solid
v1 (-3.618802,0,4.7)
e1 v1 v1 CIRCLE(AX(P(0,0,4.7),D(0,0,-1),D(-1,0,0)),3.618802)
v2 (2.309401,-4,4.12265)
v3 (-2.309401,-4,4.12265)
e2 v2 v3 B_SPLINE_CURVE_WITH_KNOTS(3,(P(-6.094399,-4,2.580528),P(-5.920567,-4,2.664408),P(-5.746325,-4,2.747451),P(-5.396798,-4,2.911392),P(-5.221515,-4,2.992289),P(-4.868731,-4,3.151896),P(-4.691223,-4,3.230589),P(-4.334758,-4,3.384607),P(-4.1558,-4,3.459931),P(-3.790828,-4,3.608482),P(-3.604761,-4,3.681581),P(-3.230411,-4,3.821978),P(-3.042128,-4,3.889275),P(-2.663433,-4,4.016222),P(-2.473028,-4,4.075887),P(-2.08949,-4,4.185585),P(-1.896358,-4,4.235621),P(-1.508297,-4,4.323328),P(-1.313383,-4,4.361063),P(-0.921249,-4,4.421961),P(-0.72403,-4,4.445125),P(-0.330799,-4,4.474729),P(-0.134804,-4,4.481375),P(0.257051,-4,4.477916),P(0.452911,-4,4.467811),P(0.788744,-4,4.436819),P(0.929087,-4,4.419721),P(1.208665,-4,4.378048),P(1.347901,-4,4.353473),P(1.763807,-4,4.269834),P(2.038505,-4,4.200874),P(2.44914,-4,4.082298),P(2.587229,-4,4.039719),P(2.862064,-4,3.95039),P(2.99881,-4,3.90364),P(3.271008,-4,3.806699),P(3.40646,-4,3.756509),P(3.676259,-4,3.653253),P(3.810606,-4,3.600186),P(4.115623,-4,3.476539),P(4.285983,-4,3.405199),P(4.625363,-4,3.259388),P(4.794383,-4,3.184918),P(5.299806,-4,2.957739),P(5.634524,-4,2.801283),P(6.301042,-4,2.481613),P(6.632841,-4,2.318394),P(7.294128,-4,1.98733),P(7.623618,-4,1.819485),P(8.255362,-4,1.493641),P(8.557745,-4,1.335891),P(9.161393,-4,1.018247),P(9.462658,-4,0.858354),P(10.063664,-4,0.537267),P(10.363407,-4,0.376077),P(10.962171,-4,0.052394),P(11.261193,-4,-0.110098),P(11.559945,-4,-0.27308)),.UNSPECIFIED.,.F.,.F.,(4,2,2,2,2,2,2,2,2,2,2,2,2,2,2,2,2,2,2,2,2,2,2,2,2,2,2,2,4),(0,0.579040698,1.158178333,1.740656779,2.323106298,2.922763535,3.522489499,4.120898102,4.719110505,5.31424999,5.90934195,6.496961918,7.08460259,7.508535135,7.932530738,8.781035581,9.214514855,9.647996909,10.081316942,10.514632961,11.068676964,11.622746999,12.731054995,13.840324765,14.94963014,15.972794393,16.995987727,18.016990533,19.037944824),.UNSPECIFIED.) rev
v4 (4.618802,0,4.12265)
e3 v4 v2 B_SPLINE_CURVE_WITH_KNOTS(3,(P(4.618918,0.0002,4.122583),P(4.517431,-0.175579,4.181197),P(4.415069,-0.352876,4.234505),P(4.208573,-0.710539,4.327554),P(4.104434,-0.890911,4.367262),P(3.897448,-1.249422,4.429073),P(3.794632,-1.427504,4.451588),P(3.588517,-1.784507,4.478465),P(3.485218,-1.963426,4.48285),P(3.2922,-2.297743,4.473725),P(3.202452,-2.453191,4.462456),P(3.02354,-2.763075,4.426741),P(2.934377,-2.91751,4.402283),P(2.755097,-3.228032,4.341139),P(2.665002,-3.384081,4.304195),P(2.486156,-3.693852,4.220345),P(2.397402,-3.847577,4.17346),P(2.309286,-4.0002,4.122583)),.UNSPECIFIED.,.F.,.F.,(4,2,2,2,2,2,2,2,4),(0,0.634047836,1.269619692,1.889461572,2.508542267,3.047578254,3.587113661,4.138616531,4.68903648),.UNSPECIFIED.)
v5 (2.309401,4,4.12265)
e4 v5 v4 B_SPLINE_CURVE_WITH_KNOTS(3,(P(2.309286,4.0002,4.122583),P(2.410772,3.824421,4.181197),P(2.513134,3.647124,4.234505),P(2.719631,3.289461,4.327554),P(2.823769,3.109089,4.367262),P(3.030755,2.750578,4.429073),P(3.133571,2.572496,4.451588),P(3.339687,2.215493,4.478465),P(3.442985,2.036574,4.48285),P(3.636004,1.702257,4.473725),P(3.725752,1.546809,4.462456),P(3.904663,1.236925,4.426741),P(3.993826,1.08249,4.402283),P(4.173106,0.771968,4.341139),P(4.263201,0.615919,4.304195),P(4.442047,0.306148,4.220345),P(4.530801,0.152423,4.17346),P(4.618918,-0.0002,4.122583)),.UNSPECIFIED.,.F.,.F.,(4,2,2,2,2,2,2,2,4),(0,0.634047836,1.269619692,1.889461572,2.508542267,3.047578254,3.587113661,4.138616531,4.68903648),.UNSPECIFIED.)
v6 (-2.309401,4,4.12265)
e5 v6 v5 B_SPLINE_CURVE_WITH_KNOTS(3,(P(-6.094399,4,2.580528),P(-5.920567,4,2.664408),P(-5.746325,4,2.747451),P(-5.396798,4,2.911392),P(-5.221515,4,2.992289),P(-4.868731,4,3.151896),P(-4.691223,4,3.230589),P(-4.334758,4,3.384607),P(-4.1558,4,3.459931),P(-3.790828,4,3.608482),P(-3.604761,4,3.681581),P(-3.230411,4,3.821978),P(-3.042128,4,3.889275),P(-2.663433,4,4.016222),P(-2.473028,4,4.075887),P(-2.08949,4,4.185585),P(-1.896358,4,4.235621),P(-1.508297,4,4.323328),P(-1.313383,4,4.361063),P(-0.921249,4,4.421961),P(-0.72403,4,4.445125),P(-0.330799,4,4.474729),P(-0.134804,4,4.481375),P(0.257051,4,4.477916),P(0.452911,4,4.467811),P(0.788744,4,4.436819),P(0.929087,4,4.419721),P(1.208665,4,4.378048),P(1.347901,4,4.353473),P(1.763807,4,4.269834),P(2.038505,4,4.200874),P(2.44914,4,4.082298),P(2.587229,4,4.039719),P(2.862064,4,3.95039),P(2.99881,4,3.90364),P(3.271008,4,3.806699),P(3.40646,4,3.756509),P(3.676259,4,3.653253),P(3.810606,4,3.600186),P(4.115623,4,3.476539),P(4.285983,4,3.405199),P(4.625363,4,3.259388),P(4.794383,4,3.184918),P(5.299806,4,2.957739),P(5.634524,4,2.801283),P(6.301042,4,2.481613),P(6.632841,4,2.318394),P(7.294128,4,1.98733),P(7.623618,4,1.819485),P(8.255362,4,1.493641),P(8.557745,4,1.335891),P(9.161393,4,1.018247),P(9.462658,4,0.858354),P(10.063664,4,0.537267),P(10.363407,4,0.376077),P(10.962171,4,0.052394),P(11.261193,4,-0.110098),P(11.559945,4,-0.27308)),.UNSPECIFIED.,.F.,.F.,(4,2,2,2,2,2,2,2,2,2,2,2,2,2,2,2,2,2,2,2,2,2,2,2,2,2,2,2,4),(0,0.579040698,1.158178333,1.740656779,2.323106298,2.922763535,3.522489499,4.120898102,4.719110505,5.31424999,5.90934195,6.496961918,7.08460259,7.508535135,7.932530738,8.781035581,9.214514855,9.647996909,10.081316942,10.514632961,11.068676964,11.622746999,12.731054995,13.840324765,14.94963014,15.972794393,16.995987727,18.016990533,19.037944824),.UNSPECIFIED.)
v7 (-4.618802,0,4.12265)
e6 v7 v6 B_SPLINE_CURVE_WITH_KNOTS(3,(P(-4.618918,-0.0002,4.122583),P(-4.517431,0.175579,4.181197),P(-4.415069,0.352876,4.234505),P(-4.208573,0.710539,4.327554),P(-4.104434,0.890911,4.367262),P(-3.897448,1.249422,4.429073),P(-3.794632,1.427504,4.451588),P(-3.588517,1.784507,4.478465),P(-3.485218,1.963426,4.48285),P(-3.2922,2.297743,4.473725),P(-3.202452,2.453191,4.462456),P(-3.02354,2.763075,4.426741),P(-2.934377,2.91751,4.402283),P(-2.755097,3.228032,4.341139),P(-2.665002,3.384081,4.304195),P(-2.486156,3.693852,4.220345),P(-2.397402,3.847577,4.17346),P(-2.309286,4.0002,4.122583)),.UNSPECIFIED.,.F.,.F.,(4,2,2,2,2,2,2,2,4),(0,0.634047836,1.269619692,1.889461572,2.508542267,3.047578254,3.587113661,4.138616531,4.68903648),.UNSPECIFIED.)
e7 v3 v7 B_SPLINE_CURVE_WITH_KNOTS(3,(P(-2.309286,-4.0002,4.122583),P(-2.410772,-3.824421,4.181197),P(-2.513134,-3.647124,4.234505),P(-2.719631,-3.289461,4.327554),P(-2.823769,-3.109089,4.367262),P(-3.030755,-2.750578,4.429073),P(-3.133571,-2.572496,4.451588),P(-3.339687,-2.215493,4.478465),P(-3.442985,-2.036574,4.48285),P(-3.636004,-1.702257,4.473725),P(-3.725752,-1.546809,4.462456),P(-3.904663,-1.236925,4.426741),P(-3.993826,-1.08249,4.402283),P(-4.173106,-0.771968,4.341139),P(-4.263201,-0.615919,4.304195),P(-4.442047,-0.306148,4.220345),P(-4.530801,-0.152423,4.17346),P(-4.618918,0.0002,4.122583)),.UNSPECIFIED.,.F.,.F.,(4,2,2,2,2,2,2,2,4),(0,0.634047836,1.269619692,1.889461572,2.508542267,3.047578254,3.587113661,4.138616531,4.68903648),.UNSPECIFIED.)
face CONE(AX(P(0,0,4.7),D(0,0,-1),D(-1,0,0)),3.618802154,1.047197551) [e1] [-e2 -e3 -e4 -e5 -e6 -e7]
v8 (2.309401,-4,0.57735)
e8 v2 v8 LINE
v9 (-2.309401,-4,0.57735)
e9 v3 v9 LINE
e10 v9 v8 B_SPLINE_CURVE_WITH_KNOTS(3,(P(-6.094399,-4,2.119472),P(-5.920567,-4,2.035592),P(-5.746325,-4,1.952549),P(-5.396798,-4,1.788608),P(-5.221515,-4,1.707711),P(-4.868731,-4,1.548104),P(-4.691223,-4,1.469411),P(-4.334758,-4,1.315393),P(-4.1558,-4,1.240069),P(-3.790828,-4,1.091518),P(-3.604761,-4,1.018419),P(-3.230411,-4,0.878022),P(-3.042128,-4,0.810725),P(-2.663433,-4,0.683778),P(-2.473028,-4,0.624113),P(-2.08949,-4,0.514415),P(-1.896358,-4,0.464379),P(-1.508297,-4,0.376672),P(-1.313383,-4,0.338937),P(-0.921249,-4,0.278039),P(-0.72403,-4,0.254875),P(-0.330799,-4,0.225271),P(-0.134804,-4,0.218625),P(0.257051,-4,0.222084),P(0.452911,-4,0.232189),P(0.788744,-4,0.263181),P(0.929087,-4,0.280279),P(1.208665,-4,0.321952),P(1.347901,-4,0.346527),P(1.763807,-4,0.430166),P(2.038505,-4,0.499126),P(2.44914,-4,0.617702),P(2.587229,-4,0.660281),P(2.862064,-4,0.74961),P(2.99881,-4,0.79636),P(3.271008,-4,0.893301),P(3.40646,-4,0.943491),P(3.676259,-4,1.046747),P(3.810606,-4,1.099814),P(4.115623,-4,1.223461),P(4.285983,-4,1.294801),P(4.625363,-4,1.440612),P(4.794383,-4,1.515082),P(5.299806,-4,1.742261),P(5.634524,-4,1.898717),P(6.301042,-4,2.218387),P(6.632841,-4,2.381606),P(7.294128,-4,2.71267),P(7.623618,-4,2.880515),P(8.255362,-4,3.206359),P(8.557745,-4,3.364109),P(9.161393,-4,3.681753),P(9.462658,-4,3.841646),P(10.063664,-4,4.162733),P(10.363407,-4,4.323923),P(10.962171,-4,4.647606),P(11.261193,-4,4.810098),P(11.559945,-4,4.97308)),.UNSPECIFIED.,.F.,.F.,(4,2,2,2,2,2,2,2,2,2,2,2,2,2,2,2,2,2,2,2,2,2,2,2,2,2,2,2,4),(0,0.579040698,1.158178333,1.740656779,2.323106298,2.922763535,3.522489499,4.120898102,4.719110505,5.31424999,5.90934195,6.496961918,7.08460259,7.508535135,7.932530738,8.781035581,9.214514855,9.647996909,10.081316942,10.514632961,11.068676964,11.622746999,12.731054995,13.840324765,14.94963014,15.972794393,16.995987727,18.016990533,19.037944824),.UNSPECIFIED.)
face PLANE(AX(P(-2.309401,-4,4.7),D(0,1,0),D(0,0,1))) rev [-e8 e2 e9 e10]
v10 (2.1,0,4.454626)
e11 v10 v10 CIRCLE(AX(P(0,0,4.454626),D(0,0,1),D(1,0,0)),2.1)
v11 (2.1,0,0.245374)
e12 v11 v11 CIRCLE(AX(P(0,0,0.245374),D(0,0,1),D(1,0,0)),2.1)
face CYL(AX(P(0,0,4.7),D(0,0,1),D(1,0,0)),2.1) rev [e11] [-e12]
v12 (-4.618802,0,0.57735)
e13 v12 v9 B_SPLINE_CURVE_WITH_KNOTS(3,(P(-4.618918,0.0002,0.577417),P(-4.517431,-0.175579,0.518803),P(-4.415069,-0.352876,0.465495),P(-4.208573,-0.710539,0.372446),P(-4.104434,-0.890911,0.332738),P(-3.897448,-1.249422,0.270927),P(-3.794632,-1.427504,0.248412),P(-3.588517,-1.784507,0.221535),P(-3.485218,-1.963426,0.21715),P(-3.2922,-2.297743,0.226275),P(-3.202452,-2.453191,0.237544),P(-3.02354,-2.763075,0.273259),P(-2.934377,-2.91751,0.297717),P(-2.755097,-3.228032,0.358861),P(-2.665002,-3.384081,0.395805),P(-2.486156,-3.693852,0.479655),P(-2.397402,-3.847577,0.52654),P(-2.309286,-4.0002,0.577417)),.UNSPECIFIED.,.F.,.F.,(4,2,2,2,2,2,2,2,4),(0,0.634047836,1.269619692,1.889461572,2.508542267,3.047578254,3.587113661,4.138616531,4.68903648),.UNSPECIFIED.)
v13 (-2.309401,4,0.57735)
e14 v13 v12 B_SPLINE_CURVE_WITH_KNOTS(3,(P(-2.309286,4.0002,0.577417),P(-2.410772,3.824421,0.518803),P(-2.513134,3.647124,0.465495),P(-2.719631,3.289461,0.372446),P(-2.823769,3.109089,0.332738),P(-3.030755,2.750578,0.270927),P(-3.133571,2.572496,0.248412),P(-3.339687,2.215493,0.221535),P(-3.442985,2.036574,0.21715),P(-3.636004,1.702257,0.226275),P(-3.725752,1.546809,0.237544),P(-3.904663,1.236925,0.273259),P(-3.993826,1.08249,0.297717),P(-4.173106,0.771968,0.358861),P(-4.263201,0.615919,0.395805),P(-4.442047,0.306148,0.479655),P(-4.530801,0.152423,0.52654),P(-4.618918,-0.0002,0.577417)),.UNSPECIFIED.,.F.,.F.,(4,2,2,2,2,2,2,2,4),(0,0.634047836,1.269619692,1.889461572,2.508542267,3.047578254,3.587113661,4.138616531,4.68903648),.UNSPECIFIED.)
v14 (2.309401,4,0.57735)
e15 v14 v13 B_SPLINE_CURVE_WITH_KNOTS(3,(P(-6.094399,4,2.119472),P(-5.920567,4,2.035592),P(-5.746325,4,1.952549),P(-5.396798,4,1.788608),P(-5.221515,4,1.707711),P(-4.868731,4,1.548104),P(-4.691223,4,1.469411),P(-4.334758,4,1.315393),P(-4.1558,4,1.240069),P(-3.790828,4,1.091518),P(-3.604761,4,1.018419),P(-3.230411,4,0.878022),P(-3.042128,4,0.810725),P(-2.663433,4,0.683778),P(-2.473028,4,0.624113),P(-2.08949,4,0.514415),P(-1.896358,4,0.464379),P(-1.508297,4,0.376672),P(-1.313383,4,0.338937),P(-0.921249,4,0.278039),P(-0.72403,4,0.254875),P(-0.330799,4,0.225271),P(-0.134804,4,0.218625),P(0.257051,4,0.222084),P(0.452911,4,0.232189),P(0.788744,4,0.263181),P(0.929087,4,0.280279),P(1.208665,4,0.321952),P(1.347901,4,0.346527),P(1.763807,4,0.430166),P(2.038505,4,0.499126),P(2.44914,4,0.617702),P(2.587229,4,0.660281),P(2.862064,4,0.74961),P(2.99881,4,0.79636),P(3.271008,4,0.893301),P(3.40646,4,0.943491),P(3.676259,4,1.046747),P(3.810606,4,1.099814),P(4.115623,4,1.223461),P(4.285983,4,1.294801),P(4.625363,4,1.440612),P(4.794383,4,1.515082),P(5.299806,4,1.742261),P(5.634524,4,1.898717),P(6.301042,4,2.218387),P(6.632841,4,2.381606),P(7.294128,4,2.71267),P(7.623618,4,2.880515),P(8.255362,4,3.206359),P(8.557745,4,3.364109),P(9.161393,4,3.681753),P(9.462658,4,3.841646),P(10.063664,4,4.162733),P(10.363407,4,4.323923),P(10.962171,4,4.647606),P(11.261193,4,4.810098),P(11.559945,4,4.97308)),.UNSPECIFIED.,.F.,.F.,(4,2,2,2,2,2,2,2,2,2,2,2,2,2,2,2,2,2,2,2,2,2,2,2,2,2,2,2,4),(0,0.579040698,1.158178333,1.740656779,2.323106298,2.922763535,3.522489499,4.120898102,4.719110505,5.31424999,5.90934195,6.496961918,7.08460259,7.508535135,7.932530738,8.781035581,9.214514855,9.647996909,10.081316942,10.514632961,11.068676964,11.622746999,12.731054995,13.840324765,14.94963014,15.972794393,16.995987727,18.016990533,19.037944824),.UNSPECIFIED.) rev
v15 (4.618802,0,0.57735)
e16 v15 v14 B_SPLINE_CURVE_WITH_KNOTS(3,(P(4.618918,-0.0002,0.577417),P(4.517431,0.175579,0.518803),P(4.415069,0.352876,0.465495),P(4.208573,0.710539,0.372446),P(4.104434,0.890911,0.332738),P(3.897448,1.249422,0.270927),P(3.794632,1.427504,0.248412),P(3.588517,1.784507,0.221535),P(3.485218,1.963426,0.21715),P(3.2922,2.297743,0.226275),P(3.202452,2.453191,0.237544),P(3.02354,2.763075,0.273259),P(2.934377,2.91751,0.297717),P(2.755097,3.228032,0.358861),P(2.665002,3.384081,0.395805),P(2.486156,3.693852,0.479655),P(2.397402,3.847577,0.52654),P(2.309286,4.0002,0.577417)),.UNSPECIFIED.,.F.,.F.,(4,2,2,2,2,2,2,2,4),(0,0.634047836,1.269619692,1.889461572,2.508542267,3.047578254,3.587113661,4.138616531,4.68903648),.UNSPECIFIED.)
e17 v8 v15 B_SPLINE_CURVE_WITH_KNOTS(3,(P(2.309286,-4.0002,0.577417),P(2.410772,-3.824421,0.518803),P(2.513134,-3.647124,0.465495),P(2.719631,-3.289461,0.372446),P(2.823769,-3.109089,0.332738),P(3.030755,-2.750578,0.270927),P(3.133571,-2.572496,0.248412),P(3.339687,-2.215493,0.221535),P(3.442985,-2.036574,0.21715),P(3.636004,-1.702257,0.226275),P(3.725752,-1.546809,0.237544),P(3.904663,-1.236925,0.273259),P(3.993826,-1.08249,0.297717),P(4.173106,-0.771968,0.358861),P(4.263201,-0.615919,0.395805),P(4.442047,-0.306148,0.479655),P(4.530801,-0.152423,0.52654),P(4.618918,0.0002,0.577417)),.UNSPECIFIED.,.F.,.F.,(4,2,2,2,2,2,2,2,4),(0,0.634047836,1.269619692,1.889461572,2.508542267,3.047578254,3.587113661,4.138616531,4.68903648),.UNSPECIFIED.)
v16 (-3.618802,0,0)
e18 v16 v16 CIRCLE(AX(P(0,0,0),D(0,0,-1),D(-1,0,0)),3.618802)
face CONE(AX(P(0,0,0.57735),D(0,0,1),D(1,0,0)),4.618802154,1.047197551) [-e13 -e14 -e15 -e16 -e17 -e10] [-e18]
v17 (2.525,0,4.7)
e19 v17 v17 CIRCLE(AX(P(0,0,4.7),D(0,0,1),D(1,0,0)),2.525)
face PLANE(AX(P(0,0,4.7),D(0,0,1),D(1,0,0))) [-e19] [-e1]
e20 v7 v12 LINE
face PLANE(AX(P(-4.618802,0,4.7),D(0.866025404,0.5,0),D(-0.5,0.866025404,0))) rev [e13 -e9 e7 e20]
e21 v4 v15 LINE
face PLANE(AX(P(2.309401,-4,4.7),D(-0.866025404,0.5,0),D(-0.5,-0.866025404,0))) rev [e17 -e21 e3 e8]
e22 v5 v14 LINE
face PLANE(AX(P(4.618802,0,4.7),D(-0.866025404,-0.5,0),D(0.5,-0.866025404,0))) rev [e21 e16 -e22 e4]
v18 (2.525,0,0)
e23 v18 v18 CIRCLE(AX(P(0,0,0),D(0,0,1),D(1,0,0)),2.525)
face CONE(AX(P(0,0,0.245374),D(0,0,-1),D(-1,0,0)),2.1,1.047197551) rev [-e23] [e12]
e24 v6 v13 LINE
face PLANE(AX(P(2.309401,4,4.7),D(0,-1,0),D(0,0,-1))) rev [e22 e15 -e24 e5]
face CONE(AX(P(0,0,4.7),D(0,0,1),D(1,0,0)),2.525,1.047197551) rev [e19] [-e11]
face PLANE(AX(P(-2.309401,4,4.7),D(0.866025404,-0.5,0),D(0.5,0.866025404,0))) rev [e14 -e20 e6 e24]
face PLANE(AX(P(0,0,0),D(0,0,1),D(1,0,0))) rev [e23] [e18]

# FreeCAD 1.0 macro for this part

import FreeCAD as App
import Part
import Sketcher
from FreeCAD import Vector
Q = App.Units.Quantity


def add_polygon(sketch, points):
    """Adds a closed chain of lines whose ends are joined by coincident constraints."""
    first, n = sketch.GeometryCount, len(points)
    for a, b in zip(points, points[1:] + points[:1]):
        sketch.addGeometry(Part.LineSegment(App.Vector(*a, 0), App.Vector(*b, 0)), False)
    for i in range(n):
        sketch.addConstraint(Sketcher.Constraint("Coincident", first + i, 2, first + (i + 1) % n, 1))

doc = App.newDocument("Part")
params = doc.addObject("Spreadsheet::Sheet", "Params")
for row, (alias, value) in enumerate([
    ("pad1_length", "4.7 mm"),
    ("sketch2_height", "4.7 mm"),
    ("groove_angle", "360 deg"),
    ("sketch3_width", "1 mm"),
    ("groove2_angle", "360 deg"),
], start=1):
    params.set(f"A{row}", alias)
    params.set(f"B{row}", "=" + value)
    params.setAlias(f"B{row}", alias)

body = doc.addObject("PartDesign::Body", "Body")

# Sketch on XY plane
sketch1 = body.newObject("Sketcher::SketchObject", "Sketch")
sketch1.AttachmentSupport = (doc.getObject("XY_Plane"), [""])
sketch1.MapMode = "FlatFace"
add_polygon(sketch1, [(2.3, 4), (-2.3, 4), (-4.6, 0), (-2.3, -4), (2.3, -4), (4.6, 0)])  # lines 0-5
sketch1.addConstraint(Sketcher.Constraint("Horizontal", 0))
sketch1.addConstraint(Sketcher.Constraint("Horizontal", 3))
sketch1.addConstraint(Sketcher.Constraint("Symmetric", 0, 2, 3, 2, -1, 1))
sketch1.addConstraint(Sketcher.Constraint("Symmetric", 1, 2, 4, 2, -1, 1))
sketch1.addConstraint(Sketcher.Constraint("PointOnObject", 1, 2, -1))
sketch1.addConstraint(Sketcher.Constraint("Parallel", 2, 5))
sketch1.addConstraint(Sketcher.Constraint("Vertical", 0, 2, 2, 2))
sketch1.addConstraint(Sketcher.Constraint("Angle", 1, Q("-120 deg")))
sketch1.addConstraint(Sketcher.Constraint("DistanceY", -1, 1, 0, 2, Q("4 mm")))
sketch1.addConstraint(Sketcher.Constraint("DistanceX", 0, 2, -1, 1, Q("2.309401 mm")))
pad1 = body.newObject("PartDesign::Pad", "Pad")
pad1.Profile = sketch1
pad1.setExpression("Length", "Params.pad1_length")

# Sketch on YZ plane
sketch2 = body.newObject("Sketcher::SketchObject", "Sketch001")
sketch2.AttachmentSupport = (doc.getObject("YZ_Plane"), [""])
sketch2.MapMode = "FlatFace"
add_polygon(sketch2, [(0, 0), (0, 4.7), (-2.52, 4.7), (-2.1, 4.45), (-2.1, 0.25), (-2.52, 0)])  # lines 0-5
sketch2.addConstraint(Sketcher.Constraint("Vertical", 0))
sketch2.addConstraint(Sketcher.Constraint("Horizontal", 1))
sketch2.addConstraint(Sketcher.Constraint("Vertical", 3))
sketch2.addConstraint(Sketcher.Constraint("Horizontal", 5))
sketch2.addConstraint(Sketcher.Constraint("Coincident", 5, 2, -1, 1))
sketch2.addConstraint(Sketcher.Constraint("Vertical", 1, 2, 4, 2))
sketch2.addConstraint(Sketcher.Constraint("Equal", 2, 4))
sketch2.addConstraint(Sketcher.Constraint("Angle", 2, Q("-30 deg")))
sketch2.addConstraint(Sketcher.Constraint("DistanceY", 0, 1, 0, 2, Q("4.7 mm")))
sketch2.addConstraint(Sketcher.Constraint("DistanceX", 2, 2, -1, 1, Q("2.1 mm")))
sketch2.addConstraint(Sketcher.Constraint("DistanceX", 1, 2, 1, 1, Q("2.525 mm")))
sketch2.setExpression("Constraints[14]", "Params.sketch2_height")
groove = body.newObject("PartDesign::Groove", "Groove")
groove.Profile = sketch2
groove.ReferenceAxis = (sketch2, ["V_Axis"])
groove.setExpression("Angle", "Params.groove_angle")

# Sketch on XZ plane
sketch3 = body.newObject("Sketcher::SketchObject", "Sketch002")
sketch3.AttachmentSupport = (doc.getObject("XZ_Plane"), [""])
sketch3.MapMode = "FlatFace"
add_polygon(sketch3, [(-4.6, 0.6), (-3.6, 0), (-4.6, 0)])  # lines 0-2
add_polygon(sketch3, [(-4.6, 4.7), (-3.6, 4.7), (-4.6, 4.1)])  # lines 3-5
sketch3.addConstraint(Sketcher.Constraint("Horizontal", 1))
sketch3.addConstraint(Sketcher.Constraint("Vertical", 2))
sketch3.addConstraint(Sketcher.Constraint("Horizontal", 3))
sketch3.addConstraint(Sketcher.Constraint("Vertical", 5))
sketch3.addConstraint(Sketcher.Constraint("PointOnObject", 0, 2, -1))
sketch3.addConstraint(Sketcher.Constraint("Vertical", 0, 2, 3, 2))
sketch3.addConstraint(Sketcher.Constraint("Vertical", 2, 2, 4, 2))
sketch3.addConstraint(Sketcher.Constraint("Equal", 2, 5))
sketch3.addConstraint(Sketcher.Constraint("DistanceX", 1, 2, 1, 1, Q("1 mm")))
sketch3.addConstraint(Sketcher.Constraint("Angle", 0, Q("-30 deg")))
sketch3.addConstraint(Sketcher.Constraint("DistanceY", -1, 1, 3, 2, Q("4.7 mm")))
sketch3.addConstraint(Sketcher.Constraint("DistanceX", 0, 2, -1, 1, Q("3.618802 mm")))
sketch3.setExpression("Constraints[14]", "Params.sketch3_width")
groove2 = body.newObject("PartDesign::Groove", "Groove001")
groove2.Profile = sketch3
groove2.ReferenceAxis = (sketch3, ["V_Axis"])
groove2.setExpression("Angle", "Params.groove2_angle")

doc.recompute()
